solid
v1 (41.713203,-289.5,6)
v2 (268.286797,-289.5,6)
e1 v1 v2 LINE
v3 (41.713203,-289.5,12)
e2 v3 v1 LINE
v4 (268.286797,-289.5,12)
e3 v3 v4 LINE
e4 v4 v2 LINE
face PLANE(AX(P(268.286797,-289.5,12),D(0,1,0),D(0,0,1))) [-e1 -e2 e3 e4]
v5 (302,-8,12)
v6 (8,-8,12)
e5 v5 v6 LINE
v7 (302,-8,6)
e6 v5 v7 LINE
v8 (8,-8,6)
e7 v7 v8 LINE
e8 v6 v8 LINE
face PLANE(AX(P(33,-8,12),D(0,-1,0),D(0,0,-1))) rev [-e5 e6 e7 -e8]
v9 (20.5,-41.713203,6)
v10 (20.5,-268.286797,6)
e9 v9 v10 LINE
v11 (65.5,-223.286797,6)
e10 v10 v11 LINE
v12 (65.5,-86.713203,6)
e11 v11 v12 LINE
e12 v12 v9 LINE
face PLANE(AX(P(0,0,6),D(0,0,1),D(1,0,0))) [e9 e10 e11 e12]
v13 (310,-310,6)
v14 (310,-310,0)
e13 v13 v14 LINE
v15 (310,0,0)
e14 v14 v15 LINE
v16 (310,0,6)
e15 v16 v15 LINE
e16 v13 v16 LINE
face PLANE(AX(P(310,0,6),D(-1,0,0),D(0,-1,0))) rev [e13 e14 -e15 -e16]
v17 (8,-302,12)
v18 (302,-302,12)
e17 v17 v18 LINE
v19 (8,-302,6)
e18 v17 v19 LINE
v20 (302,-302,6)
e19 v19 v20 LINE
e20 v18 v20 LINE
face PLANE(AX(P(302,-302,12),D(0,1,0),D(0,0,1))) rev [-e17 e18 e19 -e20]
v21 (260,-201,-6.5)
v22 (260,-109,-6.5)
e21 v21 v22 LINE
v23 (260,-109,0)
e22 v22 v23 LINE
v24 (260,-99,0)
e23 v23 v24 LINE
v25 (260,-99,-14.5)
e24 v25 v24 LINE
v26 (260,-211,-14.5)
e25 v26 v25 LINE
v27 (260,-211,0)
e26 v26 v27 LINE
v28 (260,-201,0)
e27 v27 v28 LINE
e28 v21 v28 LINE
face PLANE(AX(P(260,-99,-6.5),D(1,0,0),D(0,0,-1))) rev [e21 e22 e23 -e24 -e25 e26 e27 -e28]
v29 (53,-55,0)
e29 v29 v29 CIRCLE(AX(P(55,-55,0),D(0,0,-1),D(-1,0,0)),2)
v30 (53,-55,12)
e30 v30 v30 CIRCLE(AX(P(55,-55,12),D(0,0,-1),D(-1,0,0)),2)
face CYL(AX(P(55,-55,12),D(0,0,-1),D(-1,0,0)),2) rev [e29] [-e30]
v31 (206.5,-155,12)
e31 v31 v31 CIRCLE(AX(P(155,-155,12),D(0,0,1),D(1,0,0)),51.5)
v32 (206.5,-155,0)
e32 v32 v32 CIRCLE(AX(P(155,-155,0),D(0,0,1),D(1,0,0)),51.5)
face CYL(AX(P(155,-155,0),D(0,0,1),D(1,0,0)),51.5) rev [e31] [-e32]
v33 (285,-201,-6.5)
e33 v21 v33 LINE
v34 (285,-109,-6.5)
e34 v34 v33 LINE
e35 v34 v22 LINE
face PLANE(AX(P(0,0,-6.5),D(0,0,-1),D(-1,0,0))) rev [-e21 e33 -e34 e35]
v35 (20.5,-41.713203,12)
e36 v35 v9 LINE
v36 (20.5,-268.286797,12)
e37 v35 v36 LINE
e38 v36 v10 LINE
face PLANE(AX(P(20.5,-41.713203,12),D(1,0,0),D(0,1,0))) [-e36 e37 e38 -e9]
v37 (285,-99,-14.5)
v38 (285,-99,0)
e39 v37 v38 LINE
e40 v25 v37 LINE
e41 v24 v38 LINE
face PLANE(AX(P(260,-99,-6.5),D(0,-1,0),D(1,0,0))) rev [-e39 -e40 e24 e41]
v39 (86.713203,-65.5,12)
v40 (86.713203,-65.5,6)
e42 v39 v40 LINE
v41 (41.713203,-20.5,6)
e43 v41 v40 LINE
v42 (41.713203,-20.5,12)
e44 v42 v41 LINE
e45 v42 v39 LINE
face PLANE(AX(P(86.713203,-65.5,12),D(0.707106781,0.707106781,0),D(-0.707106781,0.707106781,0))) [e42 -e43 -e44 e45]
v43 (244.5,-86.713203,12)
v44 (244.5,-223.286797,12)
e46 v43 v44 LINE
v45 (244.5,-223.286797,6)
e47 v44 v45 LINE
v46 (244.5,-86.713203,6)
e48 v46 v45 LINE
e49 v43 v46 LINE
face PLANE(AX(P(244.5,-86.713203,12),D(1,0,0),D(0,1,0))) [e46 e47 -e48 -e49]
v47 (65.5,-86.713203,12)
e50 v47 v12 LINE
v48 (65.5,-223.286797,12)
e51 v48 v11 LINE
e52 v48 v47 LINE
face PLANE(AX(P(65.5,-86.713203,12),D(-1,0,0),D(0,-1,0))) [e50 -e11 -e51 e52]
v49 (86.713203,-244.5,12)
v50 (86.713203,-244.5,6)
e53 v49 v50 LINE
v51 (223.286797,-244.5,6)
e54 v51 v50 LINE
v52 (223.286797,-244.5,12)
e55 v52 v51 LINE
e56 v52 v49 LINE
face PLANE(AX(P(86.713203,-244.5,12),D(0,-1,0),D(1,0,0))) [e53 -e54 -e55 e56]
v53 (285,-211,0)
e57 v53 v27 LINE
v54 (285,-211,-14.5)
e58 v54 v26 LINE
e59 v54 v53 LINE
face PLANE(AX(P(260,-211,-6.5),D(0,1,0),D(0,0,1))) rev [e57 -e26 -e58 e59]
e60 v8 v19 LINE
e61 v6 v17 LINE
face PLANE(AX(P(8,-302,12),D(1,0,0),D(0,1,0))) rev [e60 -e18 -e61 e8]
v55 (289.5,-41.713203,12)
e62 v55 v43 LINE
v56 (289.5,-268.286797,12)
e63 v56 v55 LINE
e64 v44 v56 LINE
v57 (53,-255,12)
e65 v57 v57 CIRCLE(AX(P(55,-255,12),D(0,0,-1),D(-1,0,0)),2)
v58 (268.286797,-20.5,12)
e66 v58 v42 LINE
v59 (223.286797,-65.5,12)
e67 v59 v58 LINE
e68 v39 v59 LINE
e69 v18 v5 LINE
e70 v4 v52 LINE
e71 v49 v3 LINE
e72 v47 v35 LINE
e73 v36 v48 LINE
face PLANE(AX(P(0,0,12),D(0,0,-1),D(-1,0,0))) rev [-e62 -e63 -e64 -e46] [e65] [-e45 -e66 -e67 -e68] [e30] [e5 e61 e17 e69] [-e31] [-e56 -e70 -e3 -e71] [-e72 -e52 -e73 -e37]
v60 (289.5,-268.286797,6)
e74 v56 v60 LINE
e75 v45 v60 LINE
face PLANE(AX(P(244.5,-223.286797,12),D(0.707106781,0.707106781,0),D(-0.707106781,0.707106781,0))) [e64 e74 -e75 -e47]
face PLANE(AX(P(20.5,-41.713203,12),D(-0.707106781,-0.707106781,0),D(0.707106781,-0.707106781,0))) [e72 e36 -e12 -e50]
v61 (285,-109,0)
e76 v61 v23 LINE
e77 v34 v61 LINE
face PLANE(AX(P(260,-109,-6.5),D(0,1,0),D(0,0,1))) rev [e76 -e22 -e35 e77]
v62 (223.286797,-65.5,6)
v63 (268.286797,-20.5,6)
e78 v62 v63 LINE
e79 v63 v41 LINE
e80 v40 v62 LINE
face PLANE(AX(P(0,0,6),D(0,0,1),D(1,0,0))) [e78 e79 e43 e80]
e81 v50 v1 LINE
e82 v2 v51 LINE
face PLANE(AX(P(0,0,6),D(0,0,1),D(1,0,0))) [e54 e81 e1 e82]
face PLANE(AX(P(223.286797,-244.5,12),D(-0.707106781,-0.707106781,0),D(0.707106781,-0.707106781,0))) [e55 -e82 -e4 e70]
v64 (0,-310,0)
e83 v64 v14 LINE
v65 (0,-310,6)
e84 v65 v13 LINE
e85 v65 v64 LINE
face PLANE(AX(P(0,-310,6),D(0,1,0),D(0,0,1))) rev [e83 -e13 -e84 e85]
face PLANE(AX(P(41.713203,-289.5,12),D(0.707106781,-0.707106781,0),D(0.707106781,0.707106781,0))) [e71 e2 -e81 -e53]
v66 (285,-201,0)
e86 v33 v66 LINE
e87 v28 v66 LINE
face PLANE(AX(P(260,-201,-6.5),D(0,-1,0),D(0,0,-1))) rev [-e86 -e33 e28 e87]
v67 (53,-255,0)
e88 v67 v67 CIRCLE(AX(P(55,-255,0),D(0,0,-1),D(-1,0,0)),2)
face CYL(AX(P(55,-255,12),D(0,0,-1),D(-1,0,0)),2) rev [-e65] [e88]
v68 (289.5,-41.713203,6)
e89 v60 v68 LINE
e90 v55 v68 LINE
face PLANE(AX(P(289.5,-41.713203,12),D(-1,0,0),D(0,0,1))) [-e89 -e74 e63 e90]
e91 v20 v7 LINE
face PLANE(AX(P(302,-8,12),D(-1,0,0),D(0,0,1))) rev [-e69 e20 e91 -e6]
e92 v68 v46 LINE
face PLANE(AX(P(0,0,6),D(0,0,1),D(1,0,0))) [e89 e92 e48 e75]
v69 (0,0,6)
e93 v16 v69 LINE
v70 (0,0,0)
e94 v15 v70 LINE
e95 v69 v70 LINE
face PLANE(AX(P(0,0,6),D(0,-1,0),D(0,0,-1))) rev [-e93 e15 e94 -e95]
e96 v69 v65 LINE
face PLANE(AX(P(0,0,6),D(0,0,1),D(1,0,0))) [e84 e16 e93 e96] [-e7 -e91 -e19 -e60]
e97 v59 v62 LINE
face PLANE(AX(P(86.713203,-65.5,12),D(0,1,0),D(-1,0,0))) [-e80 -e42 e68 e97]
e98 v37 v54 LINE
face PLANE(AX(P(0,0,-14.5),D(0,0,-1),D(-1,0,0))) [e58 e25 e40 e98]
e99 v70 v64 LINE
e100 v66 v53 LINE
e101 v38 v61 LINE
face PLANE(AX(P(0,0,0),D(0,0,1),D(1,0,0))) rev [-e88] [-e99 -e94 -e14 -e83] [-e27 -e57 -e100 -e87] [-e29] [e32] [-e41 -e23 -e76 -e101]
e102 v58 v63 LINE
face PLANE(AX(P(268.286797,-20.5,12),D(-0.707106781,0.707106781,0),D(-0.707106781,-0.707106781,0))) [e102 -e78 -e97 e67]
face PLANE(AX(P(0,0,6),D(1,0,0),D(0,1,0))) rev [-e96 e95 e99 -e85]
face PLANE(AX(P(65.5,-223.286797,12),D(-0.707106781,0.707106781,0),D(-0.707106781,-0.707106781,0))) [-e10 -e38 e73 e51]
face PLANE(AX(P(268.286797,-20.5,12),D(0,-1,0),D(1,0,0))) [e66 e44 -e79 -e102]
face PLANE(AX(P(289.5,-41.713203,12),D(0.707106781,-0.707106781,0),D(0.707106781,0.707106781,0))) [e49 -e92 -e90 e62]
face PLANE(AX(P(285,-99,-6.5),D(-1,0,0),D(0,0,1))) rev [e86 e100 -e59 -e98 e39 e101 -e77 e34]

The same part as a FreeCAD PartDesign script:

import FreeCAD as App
import Part
import Sketcher
Q = App.Units.Quantity

doc = App.newDocument("Part")
params = doc.addObject("Spreadsheet::Sheet", "Params")
for row, (alias, value) in enumerate([
    ("sketch1_width", "310 mm"),
    ("pad1_length", "6 mm"),
    ("sketch2_width", "294 mm"),
    ("pad2_length", "6 mm"),
    ("sketch3_diameter", "103 mm"),
    ("sketch4_diameter", "4 mm"),
    ("sketch5_width", "25 mm"),
    ("sketch5_height", "10 mm"),
    ("pad3_length", "6.5 mm"),
    ("sketch6_width", "25 mm"),
    ("sketch6_height", "112 mm"),
    ("pad4_length", "8 mm"),
], start=1):
    params.set(f"A{row}", alias)
    params.set(f"B{row}", "=" + value)
    params.setAlias(f"B{row}", alias)

body = doc.addObject("PartDesign::Body", "Body")

# Sketch on XY plane
sketch1 = body.newObject("Sketcher::SketchObject", "Sketch")
sketch1.AttachmentSupport = (doc.getObject("XY_Plane"), [""])
sketch1.MapMode = "FlatFace"
sketch1.addGeometry([
    Part.LineSegment(App.Vector(0, 0, 0), App.Vector(0, -310, 0)),
    Part.LineSegment(App.Vector(0, -310, 0), App.Vector(310, -310, 0)),
    Part.LineSegment(App.Vector(310, -310, 0), App.Vector(310, 0, 0)),
    Part.LineSegment(App.Vector(310, 0, 0), App.Vector(0, 0, 0)),
], False)
sketch1.addConstraint([
    Sketcher.Constraint("Coincident", 0, 2, 1, 1),
    Sketcher.Constraint("Coincident", 1, 2, 2, 1),
    Sketcher.Constraint("Coincident", 2, 2, 3, 1),
    Sketcher.Constraint("Coincident", 3, 2, 0, 1),
    Sketcher.Constraint("Vertical", 0),
    Sketcher.Constraint("Horizontal", 1),
    Sketcher.Constraint("Vertical", 2),
    Sketcher.Constraint("Horizontal", 3),
    Sketcher.Constraint("Coincident", 3, 2, -1, 1),
    Sketcher.Constraint("Equal", 3, 0),
    Sketcher.Constraint("DistanceX", 1, 1, 1, 2, Q("310 mm")),
])
sketch1.setExpression("Constraints[10]", "Params.sketch1_width")
pad1 = body.newObject("PartDesign::Pad", "Pad")
pad1.Profile = sketch1
pad1.setExpression("Length", "Params.pad1_length")

# Sketch on XY plane
sketch2 = body.newObject("Sketcher::SketchObject", "Sketch001")
sketch2.AttachmentSupport = (doc.getObject("XY_Plane"), [""])
sketch2.MapMode = "FlatFace"
sketch2.AttachmentOffset = App.Placement(App.Vector(0, 0, 6), App.Rotation())
sketch2.addGeometry([
    Part.LineSegment(App.Vector(302, -302, 0), App.Vector(302, -8, 0)),  # 0
    Part.LineSegment(App.Vector(302, -8, 0), App.Vector(8, -8, 0)),  # 1
    Part.LineSegment(App.Vector(8, -8, 0), App.Vector(8, -302, 0)),  # 2
    Part.LineSegment(App.Vector(8, -302, 0), App.Vector(302, -302, 0)),  # 3
    Part.LineSegment(App.Vector(42, -290, 0), App.Vector(87, -244, 0)),  # 4
    Part.LineSegment(App.Vector(87, -244, 0), App.Vector(223, -244, 0)),  # 5
    Part.LineSegment(App.Vector(223, -244, 0), App.Vector(268, -290, 0)),  # 6
    Part.LineSegment(App.Vector(268, -290, 0), App.Vector(42, -290, 0)),  # 7
    Part.LineSegment(App.Vector(290, -42, 0), App.Vector(290, -268, 0)),  # 8
    Part.LineSegment(App.Vector(290, -268, 0), App.Vector(244, -223, 0)),  # 9
    Part.LineSegment(App.Vector(244, -223, 0), App.Vector(244, -87, 0)),  # 10
    Part.LineSegment(App.Vector(244, -87, 0), App.Vector(290, -42, 0)),  # 11
    Part.LineSegment(App.Vector(20, -42, 0), App.Vector(66, -87, 0)),  # 12
    Part.LineSegment(App.Vector(66, -87, 0), App.Vector(66, -223, 0)),  # 13
    Part.LineSegment(App.Vector(66, -223, 0), App.Vector(20, -268, 0)),  # 14
    Part.LineSegment(App.Vector(20, -268, 0), App.Vector(20, -42, 0)),  # 15
    Part.LineSegment(App.Vector(268, -20, 0), App.Vector(223, -66, 0)),  # 16
    Part.LineSegment(App.Vector(223, -66, 0), App.Vector(87, -66, 0)),  # 17
    Part.LineSegment(App.Vector(87, -66, 0), App.Vector(42, -20, 0)),  # 18
    Part.LineSegment(App.Vector(42, -20, 0), App.Vector(268, -20, 0)),  # 19
], False)
sketch2.addConstraint([
    Sketcher.Constraint("Coincident", 0, 2, 1, 1),
    Sketcher.Constraint("Coincident", 1, 2, 2, 1),
    Sketcher.Constraint("Coincident", 2, 2, 3, 1),
    Sketcher.Constraint("Coincident", 3, 2, 0, 1),
    Sketcher.Constraint("Coincident", 4, 2, 5, 1),
    Sketcher.Constraint("Coincident", 5, 2, 6, 1),
    Sketcher.Constraint("Coincident", 6, 2, 7, 1),
    Sketcher.Constraint("Coincident", 7, 2, 4, 1),
    Sketcher.Constraint("Coincident", 8, 2, 9, 1),
    Sketcher.Constraint("Coincident", 9, 2, 10, 1),
    Sketcher.Constraint("Coincident", 10, 2, 11, 1),
    Sketcher.Constraint("Coincident", 11, 2, 8, 1),
    Sketcher.Constraint("Coincident", 12, 2, 13, 1),
    Sketcher.Constraint("Coincident", 13, 2, 14, 1),
    Sketcher.Constraint("Coincident", 14, 2, 15, 1),
    Sketcher.Constraint("Coincident", 15, 2, 12, 1),
    Sketcher.Constraint("Coincident", 16, 2, 17, 1),
    Sketcher.Constraint("Coincident", 17, 2, 18, 1),
    Sketcher.Constraint("Coincident", 18, 2, 19, 1),
    Sketcher.Constraint("Coincident", 19, 2, 16, 1),
    Sketcher.Constraint("Vertical", 0),
    Sketcher.Constraint("Horizontal", 1),
    Sketcher.Constraint("Vertical", 2),
    Sketcher.Constraint("Horizontal", 3),
    Sketcher.Constraint("Horizontal", 5),
    Sketcher.Constraint("Horizontal", 7),
    Sketcher.Constraint("Vertical", 8),
    Sketcher.Constraint("Vertical", 10),
    Sketcher.Constraint("Vertical", 13),
    Sketcher.Constraint("Vertical", 15),
    Sketcher.Constraint("Horizontal", 17),
    Sketcher.Constraint("Horizontal", 19),
    Sketcher.Constraint("Perpendicular", 4, 6),
    Sketcher.Constraint("Parallel", 6, 9),
    Sketcher.Constraint("Perpendicular", 9, 11),
    Sketcher.Constraint("Perpendicular", 11, 12),
    Sketcher.Constraint("Perpendicular", 12, 14),
    Sketcher.Constraint("Parallel", 14, 16),
    Sketcher.Constraint("Perpendicular", 16, 18),
    Sketcher.Constraint("Horizontal", 10, 2, 12, 2),
    Sketcher.Constraint("Horizontal", 9, 2, 13, 2),
    Sketcher.Constraint("Horizontal", 8, 2, 14, 2),
    Sketcher.Constraint("Horizontal", 11, 2, 15, 2),
    Sketcher.Constraint("Vertical", 5, 2, 16, 2),
    Sketcher.Constraint("Vertical", 4, 2, 17, 2),
    Sketcher.Constraint("Vertical", 7, 2, 18, 2),
    Sketcher.Constraint("Equal", 3, 0),
    Sketcher.Constraint("Equal", 19, 8),
    Sketcher.Constraint("Equal", 17, 10),
    Sketcher.Constraint("DistanceX", 1, 2, 1, 1, Q("294 mm")),
    Sketcher.Constraint("DistanceX", -1, 1, 0, 2, Q("302 mm")),
    Sketcher.Constraint("DistanceY", 0, 2, -1, 1, Q("8 mm")),
    Sketcher.Constraint("DistanceX", 5, 2, 6, 2, Q("45 mm")),
    Sketcher.Constraint("DistanceX", 12, 2, 10, 2, Q("179 mm")),
    Sketcher.Constraint("DistanceY", 4, 2, -1, 1, Q("244.5 mm")),
    Sketcher.Constraint("DistanceX", -1, 1, 8, 2, Q("289.5 mm")),
    Sketcher.Constraint("DistanceY", 16, 2, -1, 1, Q("65.5 mm")),
    Sketcher.Constraint("DistanceX", 5, 1, 5, 2, Q("136.573593 mm")),
    Sketcher.Constraint("DistanceX", -1, 1, 4, 2, Q("86.713203 mm")),
    Sketcher.Constraint("DistanceY", 8, 2, -1, 1, Q("268.286797 mm")),
])
sketch2.setExpression("Constraints[49]", "Params.sketch2_width")
pad2 = body.newObject("PartDesign::Pad", "Pad001")
pad2.Profile = sketch2
pad2.setExpression("Length", "Params.pad2_length")

# Sketch on XY plane
sketch3 = body.newObject("Sketcher::SketchObject", "Sketch002")
sketch3.AttachmentSupport = (doc.getObject("XY_Plane"), [""])
sketch3.MapMode = "FlatFace"
sketch3.AttachmentOffset = App.Placement(App.Vector(0, 0, 12), App.Rotation())
sketch3.addGeometry(Part.Circle(App.Vector(155, -155, 0), App.Vector(0, 0, 1), 52), False)
sketch3.addConstraint([
    Sketcher.Constraint("Diameter", 0, Q("103 mm")),
    Sketcher.Constraint("DistanceX", -1, 1, 0, 3, Q("155 mm")),
    Sketcher.Constraint("DistanceY", 0, 3, -1, 1, Q("155 mm")),
])
sketch3.setExpression("Constraints[0]", "Params.sketch3_diameter")
pocket1 = body.newObject("PartDesign::Pocket", "Pocket")
pocket1.Profile = sketch3
pocket1.Type = "ThroughAll"

# Sketch on XY plane
sketch4 = body.newObject("Sketcher::SketchObject", "Sketch003")
sketch4.AttachmentSupport = (doc.getObject("XY_Plane"), [""])
sketch4.MapMode = "FlatFace"
sketch4.addGeometry([
    Part.Circle(App.Vector(55, -55, 0), App.Vector(0, 0, 1), 2),
    Part.Circle(App.Vector(55, -255, 0), App.Vector(0, 0, 1), 2),
], False)
sketch4.addConstraint([
    Sketcher.Constraint("Equal", 0, 1),
    Sketcher.Constraint("Vertical", 0, 3, 1, 3),
    Sketcher.Constraint("Diameter", 0, Q("4 mm")),
    Sketcher.Constraint("DistanceX", -1, 1, 0, 3, Q("55 mm")),
    Sketcher.Constraint("DistanceY", 0, 3, -1, 1, Q("55 mm")),
    Sketcher.Constraint("DistanceY", 1, 3, -1, 1, Q("255 mm")),
])
sketch4.setExpression("Constraints[2]", "Params.sketch4_diameter")
pocket2 = body.newObject("PartDesign::Pocket", "Pocket001")
pocket2.Profile = sketch4
pocket2.Type = "ThroughAll"
pocket2.Reversed = True

# Sketch on XY plane
sketch5 = body.newObject("Sketcher::SketchObject", "Sketch004")
sketch5.AttachmentSupport = (doc.getObject("XY_Plane"), [""])
sketch5.MapMode = "FlatFace"
sketch5.addGeometry([
    Part.LineSegment(App.Vector(285, -99, 0), App.Vector(285, -109, 0)),  # 0
    Part.LineSegment(App.Vector(285, -109, 0), App.Vector(260, -109, 0)),  # 1
    Part.LineSegment(App.Vector(260, -109, 0), App.Vector(260, -99, 0)),  # 2
    Part.LineSegment(App.Vector(260, -99, 0), App.Vector(285, -99, 0)),  # 3
    Part.LineSegment(App.Vector(285, -201, 0), App.Vector(285, -211, 0)),  # 4
    Part.LineSegment(App.Vector(285, -211, 0), App.Vector(260, -211, 0)),  # 5
    Part.LineSegment(App.Vector(260, -211, 0), App.Vector(260, -201, 0)),  # 6
    Part.LineSegment(App.Vector(260, -201, 0), App.Vector(285, -201, 0)),  # 7
], False)
sketch5.addConstraint([
    Sketcher.Constraint("Coincident", 0, 2, 1, 1),
    Sketcher.Constraint("Coincident", 1, 2, 2, 1),
    Sketcher.Constraint("Coincident", 2, 2, 3, 1),
    Sketcher.Constraint("Coincident", 3, 2, 0, 1),
    Sketcher.Constraint("Coincident", 4, 2, 5, 1),
    Sketcher.Constraint("Coincident", 5, 2, 6, 1),
    Sketcher.Constraint("Coincident", 6, 2, 7, 1),
    Sketcher.Constraint("Coincident", 7, 2, 4, 1),
    Sketcher.Constraint("Vertical", 0),
    Sketcher.Constraint("Horizontal", 1),
    Sketcher.Constraint("Vertical", 2),
    Sketcher.Constraint("Horizontal", 3),
    Sketcher.Constraint("Vertical", 4),
    Sketcher.Constraint("Horizontal", 5),
    Sketcher.Constraint("Vertical", 6),
    Sketcher.Constraint("Horizontal", 7),
    Sketcher.Constraint("Vertical", 3, 2, 4, 2),
    Sketcher.Constraint("Vertical", 2, 2, 5, 2),
    Sketcher.Constraint("Equal", 2, 4),
    Sketcher.Constraint("DistanceX", 1, 2, 1, 1, Q("25 mm")),
    Sketcher.Constraint("DistanceY", 0, 2, 0, 1, Q("10 mm")),
    Sketcher.Constraint("DistanceX", -1, 1, 0, 2, Q("285 mm")),
    Sketcher.Constraint("DistanceY", 0, 2, -1, 1, Q("109 mm")),
    Sketcher.Constraint("DistanceY", 4, 2, -1, 1, Q("211 mm")),
])
sketch5.setExpression("Constraints[19]", "Params.sketch5_width")
sketch5.setExpression("Constraints[20]", "Params.sketch5_height")
pad3 = body.newObject("PartDesign::Pad", "Pad002")
pad3.Profile = sketch5
pad3.setExpression("Length", "Params.pad3_length")
pad3.Reversed = True

# Sketch on XY plane
sketch6 = body.newObject("Sketcher::SketchObject", "Sketch005")
sketch6.AttachmentSupport = (doc.getObject("XY_Plane"), [""])
sketch6.MapMode = "FlatFace"
sketch6.AttachmentOffset = App.Placement(App.Vector(0, 0, -6.5), App.Rotation())
sketch6.addGeometry([
    Part.LineSegment(App.Vector(285, -99, 0), App.Vector(285, -211, 0)),
    Part.LineSegment(App.Vector(285, -211, 0), App.Vector(260, -211, 0)),
    Part.LineSegment(App.Vector(260, -211, 0), App.Vector(260, -99, 0)),
    Part.LineSegment(App.Vector(260, -99, 0), App.Vector(285, -99, 0)),
], False)
sketch6.addConstraint([
    Sketcher.Constraint("Coincident", 0, 2, 1, 1),
    Sketcher.Constraint("Coincident", 1, 2, 2, 1),
    Sketcher.Constraint("Coincident", 2, 2, 3, 1),
    Sketcher.Constraint("Coincident", 3, 2, 0, 1),
    Sketcher.Constraint("Vertical", 0),
    Sketcher.Constraint("Horizontal", 1),
    Sketcher.Constraint("Vertical", 2),
    Sketcher.Constraint("Horizontal", 3),
    Sketcher.Constraint("DistanceX", 1, 2, 1, 1, Q("25 mm")),
    Sketcher.Constraint("DistanceY", 0, 2, 0, 1, Q("112 mm")),
    Sketcher.Constraint("DistanceX", -1, 1, 0, 2, Q("285 mm")),
    Sketcher.Constraint("DistanceY", 0, 2, -1, 1, Q("211 mm")),
])
sketch6.setExpression("Constraints[8]", "Params.sketch6_width")
sketch6.setExpression("Constraints[9]", "Params.sketch6_height")
pad4 = body.newObject("PartDesign::Pad", "Pad003")
pad4.Profile = sketch6
pad4.setExpression("Length", "Params.pad4_length")
pad4.Reversed = True

doc.recompute()
